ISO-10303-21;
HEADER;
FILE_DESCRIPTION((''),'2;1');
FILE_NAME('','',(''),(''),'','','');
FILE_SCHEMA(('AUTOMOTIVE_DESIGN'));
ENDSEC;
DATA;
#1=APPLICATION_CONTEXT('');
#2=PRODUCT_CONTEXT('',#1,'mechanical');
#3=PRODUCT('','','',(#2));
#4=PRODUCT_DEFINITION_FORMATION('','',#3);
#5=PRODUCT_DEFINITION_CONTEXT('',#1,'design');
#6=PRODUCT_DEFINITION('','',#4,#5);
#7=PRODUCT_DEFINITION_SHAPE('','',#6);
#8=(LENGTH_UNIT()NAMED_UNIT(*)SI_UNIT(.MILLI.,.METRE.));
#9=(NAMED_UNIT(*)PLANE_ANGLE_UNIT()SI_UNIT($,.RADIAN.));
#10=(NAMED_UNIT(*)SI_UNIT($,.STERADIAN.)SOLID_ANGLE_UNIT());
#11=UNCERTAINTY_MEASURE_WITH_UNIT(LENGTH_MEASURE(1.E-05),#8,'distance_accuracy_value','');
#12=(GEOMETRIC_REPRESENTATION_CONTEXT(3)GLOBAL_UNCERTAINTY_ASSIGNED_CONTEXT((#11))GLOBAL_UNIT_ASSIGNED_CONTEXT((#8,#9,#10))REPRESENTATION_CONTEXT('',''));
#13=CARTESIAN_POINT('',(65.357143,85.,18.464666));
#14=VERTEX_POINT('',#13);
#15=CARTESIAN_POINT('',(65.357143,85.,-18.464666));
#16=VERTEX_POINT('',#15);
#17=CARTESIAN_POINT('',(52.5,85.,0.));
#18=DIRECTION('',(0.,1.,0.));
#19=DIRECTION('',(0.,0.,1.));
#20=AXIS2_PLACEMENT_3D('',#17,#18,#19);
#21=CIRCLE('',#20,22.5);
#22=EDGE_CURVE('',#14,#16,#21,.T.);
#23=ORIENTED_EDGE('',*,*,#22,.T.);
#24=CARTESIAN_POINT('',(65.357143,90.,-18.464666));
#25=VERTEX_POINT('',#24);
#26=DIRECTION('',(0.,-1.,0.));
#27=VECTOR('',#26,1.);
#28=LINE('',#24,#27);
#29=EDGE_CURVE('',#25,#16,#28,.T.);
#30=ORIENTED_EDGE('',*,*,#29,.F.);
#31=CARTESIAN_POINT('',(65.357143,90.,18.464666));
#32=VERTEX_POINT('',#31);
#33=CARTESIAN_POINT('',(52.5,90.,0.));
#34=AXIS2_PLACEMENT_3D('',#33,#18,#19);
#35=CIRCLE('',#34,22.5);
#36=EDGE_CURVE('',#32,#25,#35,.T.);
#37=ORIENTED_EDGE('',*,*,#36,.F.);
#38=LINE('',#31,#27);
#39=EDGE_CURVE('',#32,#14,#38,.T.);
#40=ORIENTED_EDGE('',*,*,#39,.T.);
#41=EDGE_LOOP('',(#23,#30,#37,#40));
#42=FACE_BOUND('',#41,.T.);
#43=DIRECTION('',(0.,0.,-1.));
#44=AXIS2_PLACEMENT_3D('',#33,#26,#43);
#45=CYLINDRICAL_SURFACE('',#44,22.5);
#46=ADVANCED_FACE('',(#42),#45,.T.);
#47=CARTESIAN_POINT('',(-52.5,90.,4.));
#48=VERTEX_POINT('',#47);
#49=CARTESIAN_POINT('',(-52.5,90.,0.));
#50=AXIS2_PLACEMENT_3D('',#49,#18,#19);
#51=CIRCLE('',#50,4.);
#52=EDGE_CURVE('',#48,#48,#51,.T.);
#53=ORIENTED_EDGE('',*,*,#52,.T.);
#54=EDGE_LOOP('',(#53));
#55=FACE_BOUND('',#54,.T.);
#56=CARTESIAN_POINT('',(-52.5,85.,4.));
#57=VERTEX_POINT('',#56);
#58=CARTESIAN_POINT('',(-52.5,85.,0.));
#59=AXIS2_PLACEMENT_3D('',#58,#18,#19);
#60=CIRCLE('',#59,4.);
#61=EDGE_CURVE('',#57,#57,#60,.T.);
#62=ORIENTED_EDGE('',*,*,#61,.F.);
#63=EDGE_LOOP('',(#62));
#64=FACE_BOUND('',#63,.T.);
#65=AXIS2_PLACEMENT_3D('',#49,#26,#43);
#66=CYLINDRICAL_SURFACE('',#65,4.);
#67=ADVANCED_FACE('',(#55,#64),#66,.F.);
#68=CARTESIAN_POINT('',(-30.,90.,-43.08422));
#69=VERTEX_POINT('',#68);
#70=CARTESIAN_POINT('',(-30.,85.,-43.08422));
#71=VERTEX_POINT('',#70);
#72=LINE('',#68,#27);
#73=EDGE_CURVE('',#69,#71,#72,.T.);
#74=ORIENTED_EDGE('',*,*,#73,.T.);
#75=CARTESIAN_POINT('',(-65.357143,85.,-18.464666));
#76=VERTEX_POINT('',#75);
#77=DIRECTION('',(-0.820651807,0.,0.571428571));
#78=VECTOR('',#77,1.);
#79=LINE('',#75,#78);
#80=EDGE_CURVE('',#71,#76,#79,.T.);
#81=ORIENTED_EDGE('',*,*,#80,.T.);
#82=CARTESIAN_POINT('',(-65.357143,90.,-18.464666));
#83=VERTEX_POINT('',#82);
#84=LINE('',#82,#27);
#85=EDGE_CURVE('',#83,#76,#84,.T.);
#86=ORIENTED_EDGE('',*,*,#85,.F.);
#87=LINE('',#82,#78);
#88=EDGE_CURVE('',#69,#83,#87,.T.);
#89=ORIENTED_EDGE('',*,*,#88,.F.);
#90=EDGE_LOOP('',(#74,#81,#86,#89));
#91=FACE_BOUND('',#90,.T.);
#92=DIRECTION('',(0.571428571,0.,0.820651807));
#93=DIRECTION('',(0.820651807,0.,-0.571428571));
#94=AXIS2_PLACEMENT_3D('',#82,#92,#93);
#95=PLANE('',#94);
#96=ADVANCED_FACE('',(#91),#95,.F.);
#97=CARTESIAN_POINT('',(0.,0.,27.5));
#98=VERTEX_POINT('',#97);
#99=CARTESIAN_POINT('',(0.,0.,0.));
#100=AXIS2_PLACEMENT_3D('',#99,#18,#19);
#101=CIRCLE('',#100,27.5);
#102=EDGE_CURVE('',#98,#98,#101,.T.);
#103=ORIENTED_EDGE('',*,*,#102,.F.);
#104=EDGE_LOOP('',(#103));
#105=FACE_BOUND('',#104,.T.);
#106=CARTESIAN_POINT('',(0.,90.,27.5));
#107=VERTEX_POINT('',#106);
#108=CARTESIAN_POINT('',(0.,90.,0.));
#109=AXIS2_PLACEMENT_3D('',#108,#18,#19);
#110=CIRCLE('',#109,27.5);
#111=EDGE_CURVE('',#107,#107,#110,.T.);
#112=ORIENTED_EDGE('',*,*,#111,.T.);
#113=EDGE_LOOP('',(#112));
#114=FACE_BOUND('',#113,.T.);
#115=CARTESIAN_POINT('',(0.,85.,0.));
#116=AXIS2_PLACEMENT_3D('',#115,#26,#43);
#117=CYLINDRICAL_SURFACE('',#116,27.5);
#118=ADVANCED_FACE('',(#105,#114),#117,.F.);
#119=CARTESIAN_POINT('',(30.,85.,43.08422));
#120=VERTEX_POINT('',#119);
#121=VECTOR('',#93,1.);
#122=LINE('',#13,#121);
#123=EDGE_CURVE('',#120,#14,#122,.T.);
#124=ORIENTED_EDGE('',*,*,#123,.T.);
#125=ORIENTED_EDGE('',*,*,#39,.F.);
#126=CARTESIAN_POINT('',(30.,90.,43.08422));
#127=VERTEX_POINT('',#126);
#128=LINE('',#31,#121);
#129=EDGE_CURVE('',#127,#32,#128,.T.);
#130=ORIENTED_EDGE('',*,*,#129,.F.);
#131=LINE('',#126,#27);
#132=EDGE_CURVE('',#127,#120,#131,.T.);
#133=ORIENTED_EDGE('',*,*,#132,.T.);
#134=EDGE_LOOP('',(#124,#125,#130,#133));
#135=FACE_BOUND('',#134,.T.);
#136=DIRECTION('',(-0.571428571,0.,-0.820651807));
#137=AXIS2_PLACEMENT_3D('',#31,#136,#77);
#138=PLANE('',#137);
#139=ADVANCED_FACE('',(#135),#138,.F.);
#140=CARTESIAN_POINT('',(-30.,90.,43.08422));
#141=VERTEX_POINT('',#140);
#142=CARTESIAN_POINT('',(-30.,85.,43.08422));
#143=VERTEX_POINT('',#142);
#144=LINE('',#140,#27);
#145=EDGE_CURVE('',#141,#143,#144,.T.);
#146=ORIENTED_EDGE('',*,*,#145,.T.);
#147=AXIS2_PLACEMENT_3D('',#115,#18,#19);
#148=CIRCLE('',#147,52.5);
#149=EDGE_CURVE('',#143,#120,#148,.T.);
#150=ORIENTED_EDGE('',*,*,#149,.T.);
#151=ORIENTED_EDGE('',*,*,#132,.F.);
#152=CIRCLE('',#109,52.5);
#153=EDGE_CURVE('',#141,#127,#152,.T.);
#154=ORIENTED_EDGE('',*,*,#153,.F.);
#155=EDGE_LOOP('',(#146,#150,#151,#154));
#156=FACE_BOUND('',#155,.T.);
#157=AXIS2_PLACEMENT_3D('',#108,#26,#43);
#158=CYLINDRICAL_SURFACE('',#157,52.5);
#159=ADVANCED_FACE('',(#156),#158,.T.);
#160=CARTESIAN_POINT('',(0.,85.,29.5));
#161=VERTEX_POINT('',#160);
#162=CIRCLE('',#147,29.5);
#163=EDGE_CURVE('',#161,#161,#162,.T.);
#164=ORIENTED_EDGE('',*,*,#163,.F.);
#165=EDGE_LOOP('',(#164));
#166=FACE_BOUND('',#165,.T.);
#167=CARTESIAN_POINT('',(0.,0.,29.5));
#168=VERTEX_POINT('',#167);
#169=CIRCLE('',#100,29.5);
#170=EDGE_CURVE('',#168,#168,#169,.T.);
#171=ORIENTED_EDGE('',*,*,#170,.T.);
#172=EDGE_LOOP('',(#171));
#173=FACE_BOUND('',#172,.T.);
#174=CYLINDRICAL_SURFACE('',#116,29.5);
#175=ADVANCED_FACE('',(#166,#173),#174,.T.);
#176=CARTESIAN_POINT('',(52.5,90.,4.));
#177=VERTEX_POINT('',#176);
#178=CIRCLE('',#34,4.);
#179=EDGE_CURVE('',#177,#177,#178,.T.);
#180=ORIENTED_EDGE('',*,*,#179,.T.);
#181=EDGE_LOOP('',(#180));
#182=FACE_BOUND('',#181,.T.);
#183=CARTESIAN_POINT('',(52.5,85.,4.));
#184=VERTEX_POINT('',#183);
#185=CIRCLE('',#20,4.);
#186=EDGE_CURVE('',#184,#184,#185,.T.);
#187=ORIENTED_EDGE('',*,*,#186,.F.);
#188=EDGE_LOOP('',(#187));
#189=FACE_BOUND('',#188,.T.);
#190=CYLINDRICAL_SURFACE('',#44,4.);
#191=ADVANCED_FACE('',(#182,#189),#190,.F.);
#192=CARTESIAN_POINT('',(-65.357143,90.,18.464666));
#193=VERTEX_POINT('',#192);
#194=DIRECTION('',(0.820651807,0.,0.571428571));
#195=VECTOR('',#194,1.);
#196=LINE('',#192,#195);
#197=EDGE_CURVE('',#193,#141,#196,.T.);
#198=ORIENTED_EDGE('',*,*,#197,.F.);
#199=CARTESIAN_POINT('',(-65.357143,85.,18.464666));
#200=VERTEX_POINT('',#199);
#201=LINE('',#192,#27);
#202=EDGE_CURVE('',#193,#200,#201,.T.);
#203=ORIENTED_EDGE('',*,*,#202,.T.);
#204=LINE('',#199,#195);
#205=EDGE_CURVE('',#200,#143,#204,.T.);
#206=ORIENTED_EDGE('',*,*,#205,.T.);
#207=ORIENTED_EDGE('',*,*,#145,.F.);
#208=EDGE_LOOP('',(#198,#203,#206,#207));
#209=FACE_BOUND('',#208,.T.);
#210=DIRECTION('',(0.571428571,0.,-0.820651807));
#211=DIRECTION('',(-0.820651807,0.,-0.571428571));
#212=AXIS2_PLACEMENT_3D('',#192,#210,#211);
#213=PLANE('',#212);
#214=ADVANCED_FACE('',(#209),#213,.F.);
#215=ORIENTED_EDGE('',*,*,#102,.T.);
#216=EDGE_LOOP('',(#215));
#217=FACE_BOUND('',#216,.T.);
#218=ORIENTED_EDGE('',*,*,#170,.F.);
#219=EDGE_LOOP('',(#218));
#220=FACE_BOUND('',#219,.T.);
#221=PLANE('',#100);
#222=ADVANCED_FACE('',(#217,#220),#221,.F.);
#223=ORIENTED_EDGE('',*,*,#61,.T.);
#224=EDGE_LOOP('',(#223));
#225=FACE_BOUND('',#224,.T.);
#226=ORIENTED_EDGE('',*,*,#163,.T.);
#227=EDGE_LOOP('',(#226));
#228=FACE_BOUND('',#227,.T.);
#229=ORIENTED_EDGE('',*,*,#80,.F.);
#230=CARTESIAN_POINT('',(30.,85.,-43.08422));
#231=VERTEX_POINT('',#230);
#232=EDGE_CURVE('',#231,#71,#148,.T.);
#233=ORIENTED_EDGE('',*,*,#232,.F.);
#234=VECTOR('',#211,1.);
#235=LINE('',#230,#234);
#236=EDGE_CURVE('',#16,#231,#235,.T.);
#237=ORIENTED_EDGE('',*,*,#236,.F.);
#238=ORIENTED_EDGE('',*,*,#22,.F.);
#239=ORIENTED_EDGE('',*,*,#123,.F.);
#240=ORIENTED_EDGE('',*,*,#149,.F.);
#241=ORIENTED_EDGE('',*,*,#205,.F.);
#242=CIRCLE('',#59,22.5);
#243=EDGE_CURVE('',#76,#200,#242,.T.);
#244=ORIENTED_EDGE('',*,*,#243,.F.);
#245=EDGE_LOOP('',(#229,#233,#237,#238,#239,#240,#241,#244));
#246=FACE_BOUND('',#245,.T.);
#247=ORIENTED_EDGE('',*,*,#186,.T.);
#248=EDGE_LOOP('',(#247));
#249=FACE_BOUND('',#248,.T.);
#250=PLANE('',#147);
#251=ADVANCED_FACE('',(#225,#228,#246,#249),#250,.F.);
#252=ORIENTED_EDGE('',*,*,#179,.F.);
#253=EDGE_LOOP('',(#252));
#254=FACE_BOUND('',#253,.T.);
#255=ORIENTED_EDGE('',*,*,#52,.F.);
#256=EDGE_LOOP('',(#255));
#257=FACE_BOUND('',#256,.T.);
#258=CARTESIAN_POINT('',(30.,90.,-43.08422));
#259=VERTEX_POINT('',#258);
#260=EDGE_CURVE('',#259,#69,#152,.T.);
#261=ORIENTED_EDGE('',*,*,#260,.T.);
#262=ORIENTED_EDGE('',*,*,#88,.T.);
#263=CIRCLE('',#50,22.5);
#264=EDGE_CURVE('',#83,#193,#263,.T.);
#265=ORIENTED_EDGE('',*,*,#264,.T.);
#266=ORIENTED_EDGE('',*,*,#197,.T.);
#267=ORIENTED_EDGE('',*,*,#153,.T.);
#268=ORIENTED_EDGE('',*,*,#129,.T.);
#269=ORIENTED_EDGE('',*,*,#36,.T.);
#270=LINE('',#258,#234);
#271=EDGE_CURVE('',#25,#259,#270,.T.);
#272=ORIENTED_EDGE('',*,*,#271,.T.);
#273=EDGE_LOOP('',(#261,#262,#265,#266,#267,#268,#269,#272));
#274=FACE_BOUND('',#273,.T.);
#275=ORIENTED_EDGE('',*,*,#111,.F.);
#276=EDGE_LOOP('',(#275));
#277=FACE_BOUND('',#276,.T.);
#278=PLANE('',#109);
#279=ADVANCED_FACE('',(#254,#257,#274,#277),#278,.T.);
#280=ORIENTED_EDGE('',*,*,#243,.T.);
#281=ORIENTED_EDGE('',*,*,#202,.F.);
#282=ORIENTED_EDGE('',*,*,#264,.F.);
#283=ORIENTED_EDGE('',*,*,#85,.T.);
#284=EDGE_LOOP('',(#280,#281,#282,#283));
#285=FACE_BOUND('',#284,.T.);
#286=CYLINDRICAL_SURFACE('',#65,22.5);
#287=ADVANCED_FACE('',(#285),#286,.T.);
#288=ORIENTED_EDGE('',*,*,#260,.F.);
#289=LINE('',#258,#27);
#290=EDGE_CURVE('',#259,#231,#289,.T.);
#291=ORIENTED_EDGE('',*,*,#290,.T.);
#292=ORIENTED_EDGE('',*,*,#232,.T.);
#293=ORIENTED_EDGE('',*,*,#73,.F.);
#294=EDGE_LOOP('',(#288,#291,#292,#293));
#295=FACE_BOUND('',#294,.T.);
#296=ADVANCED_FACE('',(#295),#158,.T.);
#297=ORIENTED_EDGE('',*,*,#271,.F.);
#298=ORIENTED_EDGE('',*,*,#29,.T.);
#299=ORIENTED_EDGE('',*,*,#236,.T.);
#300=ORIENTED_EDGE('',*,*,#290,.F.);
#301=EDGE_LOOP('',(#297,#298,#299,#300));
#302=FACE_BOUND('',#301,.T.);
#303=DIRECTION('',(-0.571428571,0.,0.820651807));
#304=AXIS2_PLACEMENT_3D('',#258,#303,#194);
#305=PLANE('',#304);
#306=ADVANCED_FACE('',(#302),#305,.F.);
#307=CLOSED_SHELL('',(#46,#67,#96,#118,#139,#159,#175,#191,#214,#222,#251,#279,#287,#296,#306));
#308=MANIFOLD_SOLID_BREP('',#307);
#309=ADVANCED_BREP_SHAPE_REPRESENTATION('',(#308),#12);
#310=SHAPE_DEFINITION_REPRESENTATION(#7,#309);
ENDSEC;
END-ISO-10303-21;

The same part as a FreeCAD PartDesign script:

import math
import FreeCAD as App
import Part
import Sketcher

V = App.Vector
Q = App.Units.Quantity

doc = App.newDocument("Part")
body = doc.addObject("PartDesign::Body", "Body")

# Sketch on XZ plane
sketch1 = doc.addObject("Sketcher::SketchObject", "Sketch")
body.addObject(sketch1)
sketch1.AttachmentSupport = (doc.XZ_Plane, [""])
sketch1.MapMode = "FlatFace"
sketch1.addGeometry([
    Part.Circle(V(0, 0, 0), V(0, 0, 1), 30),
    Part.Circle(V(0, 0, 0), V(0, 0, 1), 28),
], False)
sketch1.addConstraint([
    Sketcher.Constraint("Coincident", 0, 3, -1, 1),
    Sketcher.Constraint("Coincident", 1, 3, -1, 1),
    Sketcher.Constraint("Diameter", 0, Q("59 mm")),
    Sketcher.Constraint("Diameter", 1, Q("55 mm")),
])
pad1 = doc.addObject("PartDesign::Pad", "Pad")
body.addObject(pad1)
pad1.Profile = sketch1
pad1.Length = 85
pad1.Reversed = True

# Sketch on XZ plane
sketch2 = doc.addObject("Sketcher::SketchObject", "Sketch001")
body.addObject(sketch2)
sketch2.AttachmentSupport = (doc.XZ_Plane, [""])
sketch2.MapMode = "FlatFace"
sketch2.AttachmentOffset = App.Placement(V(0, 0, -85), App.Rotation())
sketch2.addGeometry([
    Part.LineSegment(V(65.4, -18.5, 0), V(30, -43.1, 0)),  # 0
    Part.ArcOfCircle(Part.Circle(V(0, 0, 0), V(0, 0, 1), 52.5), math.radians(-125), math.radians(-55)),  # 1
    Part.LineSegment(V(-30, -43.1, 0), V(-65.4, -18.5, 0)),  # 2
    Part.ArcOfCircle(Part.Circle(V(-52.5, 0, 0), V(0, 0, 1), 22.5), math.radians(125), math.radians(235)),  # 3
    Part.LineSegment(V(-65.4, 18.5, 0), V(-30, 43.1, 0)),  # 4
    Part.ArcOfCircle(Part.Circle(V(0, 0, 0), V(0, 0, 1), 52.5), math.radians(55), math.radians(125)),  # 5
    Part.LineSegment(V(30, 43.1, 0), V(65.4, 18.5, 0)),  # 6
    Part.ArcOfCircle(Part.Circle(V(52.5, 0, 0), V(0, 0, 1), 22.5), math.radians(-55), math.radians(55)),  # 7
    Part.Circle(V(52.5, 0, 0), V(0, 0, 1), 4),  # 8
    Part.Circle(V(0, 0, 0), V(0, 0, 1), 27.5),  # 9
    Part.Circle(V(-52.5, 0, 0), V(0, 0, 1), 4),  # 10
], False)
sketch2.addConstraint([
    Sketcher.Constraint("Tangent", 0, 2, 1, 2),
    Sketcher.Constraint("Tangent", 1, 1, 2, 1),
    Sketcher.Constraint("Tangent", 2, 2, 3, 2),
    Sketcher.Constraint("Tangent", 3, 1, 4, 1),
    Sketcher.Constraint("Tangent", 4, 2, 5, 2),
    Sketcher.Constraint("Tangent", 5, 1, 6, 1),
    Sketcher.Constraint("Tangent", 6, 2, 7, 2),
    Sketcher.Constraint("Tangent", 7, 1, 0, 1),
    Sketcher.Constraint("Coincident", 1, 3, -1, 1),
    Sketcher.Constraint("Coincident", 5, 3, -1, 1),
    Sketcher.Constraint("Coincident", 9, 3, -1, 1),
    Sketcher.Constraint("Coincident", 8, 3, 7, 3),
    Sketcher.Constraint("Coincident", 10, 3, 3, 3),
    Sketcher.Constraint("Equal", 1, 5),
    Sketcher.Constraint("Equal", 3, 7),
    Sketcher.Constraint("Equal", 8, 10),
    Sketcher.Constraint("Symmetric", 3, 3, 7, 3, -1, 1),
    Sketcher.Constraint("PointOnObject", 3, 3, -1),
    Sketcher.Constraint("Diameter", 8, Q("8 mm")),
    Sketcher.Constraint("Diameter", 9, Q("55 mm")),
    Sketcher.Constraint("Radius", 1, Q("52.5 mm")),
    Sketcher.Constraint("Radius", 3, Q("22.5 mm")),
    Sketcher.Constraint("DistanceX", -1, 1, 0, 2, Q("30 mm")),
])
pad2 = doc.addObject("PartDesign::Pad", "Pad001")
body.addObject(pad2)
pad2.Profile = sketch2
pad2.Length = 5
pad2.Reversed = True

doc.recompute()
